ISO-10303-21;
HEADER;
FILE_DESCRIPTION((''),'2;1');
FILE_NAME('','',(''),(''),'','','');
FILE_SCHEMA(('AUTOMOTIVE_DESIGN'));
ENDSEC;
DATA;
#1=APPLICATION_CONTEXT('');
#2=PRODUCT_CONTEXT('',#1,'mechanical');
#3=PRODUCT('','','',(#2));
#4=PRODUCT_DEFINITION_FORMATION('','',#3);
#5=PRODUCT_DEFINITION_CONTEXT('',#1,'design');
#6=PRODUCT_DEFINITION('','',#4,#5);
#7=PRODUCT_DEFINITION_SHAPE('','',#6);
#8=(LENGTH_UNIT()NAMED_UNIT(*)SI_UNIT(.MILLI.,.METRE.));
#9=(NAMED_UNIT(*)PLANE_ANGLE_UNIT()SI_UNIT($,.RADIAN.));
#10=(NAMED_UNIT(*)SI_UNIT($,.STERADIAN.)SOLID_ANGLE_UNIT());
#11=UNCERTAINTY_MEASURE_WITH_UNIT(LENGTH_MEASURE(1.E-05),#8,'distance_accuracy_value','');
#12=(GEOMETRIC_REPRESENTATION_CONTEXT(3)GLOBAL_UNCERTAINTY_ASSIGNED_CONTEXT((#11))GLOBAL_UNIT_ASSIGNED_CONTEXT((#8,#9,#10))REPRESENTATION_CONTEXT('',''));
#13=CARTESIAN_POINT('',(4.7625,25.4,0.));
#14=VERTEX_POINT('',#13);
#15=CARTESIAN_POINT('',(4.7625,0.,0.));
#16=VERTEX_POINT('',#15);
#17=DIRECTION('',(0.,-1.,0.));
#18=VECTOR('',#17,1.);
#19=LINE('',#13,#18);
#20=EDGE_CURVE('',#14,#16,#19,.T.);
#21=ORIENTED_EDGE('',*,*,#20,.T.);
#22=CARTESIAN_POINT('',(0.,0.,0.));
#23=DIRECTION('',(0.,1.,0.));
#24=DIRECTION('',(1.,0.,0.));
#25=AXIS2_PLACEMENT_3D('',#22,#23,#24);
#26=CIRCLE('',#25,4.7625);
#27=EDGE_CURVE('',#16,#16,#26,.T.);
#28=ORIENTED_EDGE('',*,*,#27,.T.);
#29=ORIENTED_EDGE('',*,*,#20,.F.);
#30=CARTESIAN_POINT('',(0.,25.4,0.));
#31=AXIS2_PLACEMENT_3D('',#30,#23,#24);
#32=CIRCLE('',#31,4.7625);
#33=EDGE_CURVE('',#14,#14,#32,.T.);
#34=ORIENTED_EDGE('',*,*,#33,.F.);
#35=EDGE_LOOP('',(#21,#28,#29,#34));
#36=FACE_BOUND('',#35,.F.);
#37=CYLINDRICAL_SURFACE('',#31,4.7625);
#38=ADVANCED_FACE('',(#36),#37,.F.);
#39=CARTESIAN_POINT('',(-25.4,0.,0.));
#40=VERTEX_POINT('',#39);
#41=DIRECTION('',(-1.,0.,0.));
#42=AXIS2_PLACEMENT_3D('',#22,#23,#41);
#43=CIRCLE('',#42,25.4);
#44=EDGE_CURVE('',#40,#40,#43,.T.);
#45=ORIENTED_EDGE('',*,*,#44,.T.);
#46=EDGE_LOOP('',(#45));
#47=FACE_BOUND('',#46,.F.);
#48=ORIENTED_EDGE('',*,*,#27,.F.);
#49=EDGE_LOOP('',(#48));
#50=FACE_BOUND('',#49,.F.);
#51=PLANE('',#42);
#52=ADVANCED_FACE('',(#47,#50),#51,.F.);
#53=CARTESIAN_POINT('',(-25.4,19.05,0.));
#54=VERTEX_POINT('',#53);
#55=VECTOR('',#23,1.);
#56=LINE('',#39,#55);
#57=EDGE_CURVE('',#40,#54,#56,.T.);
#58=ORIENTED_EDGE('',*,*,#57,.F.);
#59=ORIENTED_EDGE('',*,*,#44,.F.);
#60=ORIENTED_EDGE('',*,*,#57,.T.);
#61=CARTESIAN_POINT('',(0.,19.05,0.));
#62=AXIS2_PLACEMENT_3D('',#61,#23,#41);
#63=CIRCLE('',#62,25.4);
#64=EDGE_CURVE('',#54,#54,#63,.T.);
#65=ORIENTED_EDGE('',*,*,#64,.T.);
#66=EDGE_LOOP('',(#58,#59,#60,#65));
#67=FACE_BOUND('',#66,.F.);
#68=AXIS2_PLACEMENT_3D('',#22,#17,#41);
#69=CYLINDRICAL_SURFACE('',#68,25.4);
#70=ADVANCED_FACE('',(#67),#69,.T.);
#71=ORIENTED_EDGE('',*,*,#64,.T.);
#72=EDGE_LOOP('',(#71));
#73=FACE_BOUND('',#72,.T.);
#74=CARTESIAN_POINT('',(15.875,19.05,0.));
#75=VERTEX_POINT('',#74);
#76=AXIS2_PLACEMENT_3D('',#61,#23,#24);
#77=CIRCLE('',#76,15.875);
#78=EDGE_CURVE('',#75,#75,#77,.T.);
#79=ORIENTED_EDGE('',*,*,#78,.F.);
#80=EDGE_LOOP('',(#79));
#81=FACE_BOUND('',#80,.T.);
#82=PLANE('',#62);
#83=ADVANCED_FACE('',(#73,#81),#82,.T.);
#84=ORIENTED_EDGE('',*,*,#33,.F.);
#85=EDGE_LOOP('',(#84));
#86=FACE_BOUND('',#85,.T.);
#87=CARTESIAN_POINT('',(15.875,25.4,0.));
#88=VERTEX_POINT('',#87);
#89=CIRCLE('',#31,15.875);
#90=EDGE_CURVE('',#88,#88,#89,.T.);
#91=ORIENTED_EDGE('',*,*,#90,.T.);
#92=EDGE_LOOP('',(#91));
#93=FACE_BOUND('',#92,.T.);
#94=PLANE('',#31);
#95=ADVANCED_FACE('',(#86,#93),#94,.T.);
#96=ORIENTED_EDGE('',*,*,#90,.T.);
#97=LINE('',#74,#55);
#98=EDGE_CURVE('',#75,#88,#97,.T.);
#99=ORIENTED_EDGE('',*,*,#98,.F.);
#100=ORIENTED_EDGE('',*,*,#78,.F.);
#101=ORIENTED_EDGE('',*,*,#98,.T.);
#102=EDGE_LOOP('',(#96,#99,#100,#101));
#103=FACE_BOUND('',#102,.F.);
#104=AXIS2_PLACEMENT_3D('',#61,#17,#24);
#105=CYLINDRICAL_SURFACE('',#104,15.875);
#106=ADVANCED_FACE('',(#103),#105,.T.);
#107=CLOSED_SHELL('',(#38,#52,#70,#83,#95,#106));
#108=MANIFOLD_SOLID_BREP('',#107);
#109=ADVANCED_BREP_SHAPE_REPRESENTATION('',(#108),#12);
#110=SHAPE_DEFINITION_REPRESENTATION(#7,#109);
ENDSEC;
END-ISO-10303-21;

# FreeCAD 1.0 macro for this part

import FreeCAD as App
import Part
import Sketcher
Q = App.Units.Quantity

doc = App.newDocument("Part")
body = doc.addObject("PartDesign::Body", "Body")

# Sketch on XZ plane
sketch1 = body.newObject("Sketcher::SketchObject", "Sketch")
sketch1.AttachmentSupport = (doc.getObject("XZ_Plane"), [""])
sketch1.MapMode = "FlatFace"
sketch1.addGeometry(Part.Circle(App.Vector(0, 0, 0), App.Vector(0, 0, 1), 25), False)
sketch1.addConstraint(Sketcher.Constraint("Coincident", 0, 3, -1, 1))
sketch1.addConstraint(Sketcher.Constraint("Diameter", 0, Q("2 in")))
pad1 = body.newObject("PartDesign::Pad", "Pad")
pad1.Profile = sketch1
pad1.Length = Q("0.75 in")
pad1.Reversed = True

# Sketch on XZ plane
sketch2 = body.newObject("Sketcher::SketchObject", "Sketch001")
sketch2.AttachmentSupport = (doc.getObject("XZ_Plane"), [""])
sketch2.MapMode = "FlatFace"
sketch2.AttachmentOffset = App.Placement(App.Vector(0, 0, -0.75 * 25.4), App.Rotation())
sketch2.addGeometry(Part.Circle(App.Vector(0, 0, 0), App.Vector(0, 0, 1), 16), False)
sketch2.addConstraint(Sketcher.Constraint("Coincident", 0, 3, -1, 1))
sketch2.addConstraint(Sketcher.Constraint("Diameter", 0, Q("1.25 in")))
pad2 = body.newObject("PartDesign::Pad", "Pad001")
pad2.Profile = sketch2
pad2.Length = Q("0.25 in")
pad2.Reversed = True

# Sketch on XZ plane
sketch3 = body.newObject("Sketcher::SketchObject", "Sketch002")
sketch3.AttachmentSupport = (doc.getObject("XZ_Plane"), [""])
sketch3.MapMode = "FlatFace"
sketch3.AttachmentOffset = App.Placement(App.Vector(0, 0, -1 * 25.4), App.Rotation())
sketch3.addGeometry(Part.Circle(App.Vector(0, 0, 0), App.Vector(0, 0, 1), 4.8), False)
sketch3.addConstraint(Sketcher.Constraint("Coincident", 0, 3, -1, 1))
sketch3.addConstraint(Sketcher.Constraint("Diameter", 0, Q("0.375 in")))
pocket1 = body.newObject("PartDesign::Pocket", "Pocket")
pocket1.Profile = sketch3
pocket1.Length = Q("1.25 in")

# Sketch on XZ plane
sketch4 = body.newObject("Sketcher::SketchObject", "Sketch003")
sketch4.AttachmentSupport = (doc.getObject("XZ_Plane"), [""])
sketch4.MapMode = "FlatFace"
sketch4.AttachmentOffset = App.Placement(App.Vector(0, 0, -1 * 25.4), App.Rotation())
sketch4.addGeometry(Part.Circle(App.Vector(0, 0, 0), App.Vector(0, 0, 1), 4.8), False)
sketch4.addConstraint(Sketcher.Constraint("Coincident", 0, 3, -1, 1))
sketch4.addConstraint(Sketcher.Constraint("Diameter", 0, Q("0.375 in")))
pocket2 = body.newObject("PartDesign::Pocket", "Pocket001")
pocket2.Profile = sketch4
pocket2.Length = Q("1.25 in")
pocket2.Reversed = True

doc.recompute()
